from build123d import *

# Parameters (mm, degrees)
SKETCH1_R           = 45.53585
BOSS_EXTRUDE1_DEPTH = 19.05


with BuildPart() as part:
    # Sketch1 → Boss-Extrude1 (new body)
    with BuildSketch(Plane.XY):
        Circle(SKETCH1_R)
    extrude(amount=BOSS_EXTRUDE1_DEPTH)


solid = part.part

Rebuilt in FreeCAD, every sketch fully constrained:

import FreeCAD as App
import Part
import Sketcher
from FreeCAD import Vector
Q = App.Units.Quantity

doc = App.newDocument("Part")
body = doc.addObject("PartDesign::Body", "Body")

# Sketch on XY plane
sketch1 = body.newObject("Sketcher::SketchObject", "Sketch")
sketch1.AttachmentSupport = (doc.getObject("XY_Plane"), [""])
sketch1.MapMode = "FlatFace"
sketch1.addGeometry(Part.Circle(Vector(0, 0, 0), Vector(0, 0, 1), 46), False)
sketch1.addConstraint([
    Sketcher.Constraint("Coincident", 0, 3, -1, 1),
    Sketcher.Constraint("Diameter", 0, Q("3.5855 in")),
])
pad1 = body.newObject("PartDesign::Pad", "Pad")
pad1.Profile = sketch1
pad1.Length = Q("0.75 in")

doc.recompute()
